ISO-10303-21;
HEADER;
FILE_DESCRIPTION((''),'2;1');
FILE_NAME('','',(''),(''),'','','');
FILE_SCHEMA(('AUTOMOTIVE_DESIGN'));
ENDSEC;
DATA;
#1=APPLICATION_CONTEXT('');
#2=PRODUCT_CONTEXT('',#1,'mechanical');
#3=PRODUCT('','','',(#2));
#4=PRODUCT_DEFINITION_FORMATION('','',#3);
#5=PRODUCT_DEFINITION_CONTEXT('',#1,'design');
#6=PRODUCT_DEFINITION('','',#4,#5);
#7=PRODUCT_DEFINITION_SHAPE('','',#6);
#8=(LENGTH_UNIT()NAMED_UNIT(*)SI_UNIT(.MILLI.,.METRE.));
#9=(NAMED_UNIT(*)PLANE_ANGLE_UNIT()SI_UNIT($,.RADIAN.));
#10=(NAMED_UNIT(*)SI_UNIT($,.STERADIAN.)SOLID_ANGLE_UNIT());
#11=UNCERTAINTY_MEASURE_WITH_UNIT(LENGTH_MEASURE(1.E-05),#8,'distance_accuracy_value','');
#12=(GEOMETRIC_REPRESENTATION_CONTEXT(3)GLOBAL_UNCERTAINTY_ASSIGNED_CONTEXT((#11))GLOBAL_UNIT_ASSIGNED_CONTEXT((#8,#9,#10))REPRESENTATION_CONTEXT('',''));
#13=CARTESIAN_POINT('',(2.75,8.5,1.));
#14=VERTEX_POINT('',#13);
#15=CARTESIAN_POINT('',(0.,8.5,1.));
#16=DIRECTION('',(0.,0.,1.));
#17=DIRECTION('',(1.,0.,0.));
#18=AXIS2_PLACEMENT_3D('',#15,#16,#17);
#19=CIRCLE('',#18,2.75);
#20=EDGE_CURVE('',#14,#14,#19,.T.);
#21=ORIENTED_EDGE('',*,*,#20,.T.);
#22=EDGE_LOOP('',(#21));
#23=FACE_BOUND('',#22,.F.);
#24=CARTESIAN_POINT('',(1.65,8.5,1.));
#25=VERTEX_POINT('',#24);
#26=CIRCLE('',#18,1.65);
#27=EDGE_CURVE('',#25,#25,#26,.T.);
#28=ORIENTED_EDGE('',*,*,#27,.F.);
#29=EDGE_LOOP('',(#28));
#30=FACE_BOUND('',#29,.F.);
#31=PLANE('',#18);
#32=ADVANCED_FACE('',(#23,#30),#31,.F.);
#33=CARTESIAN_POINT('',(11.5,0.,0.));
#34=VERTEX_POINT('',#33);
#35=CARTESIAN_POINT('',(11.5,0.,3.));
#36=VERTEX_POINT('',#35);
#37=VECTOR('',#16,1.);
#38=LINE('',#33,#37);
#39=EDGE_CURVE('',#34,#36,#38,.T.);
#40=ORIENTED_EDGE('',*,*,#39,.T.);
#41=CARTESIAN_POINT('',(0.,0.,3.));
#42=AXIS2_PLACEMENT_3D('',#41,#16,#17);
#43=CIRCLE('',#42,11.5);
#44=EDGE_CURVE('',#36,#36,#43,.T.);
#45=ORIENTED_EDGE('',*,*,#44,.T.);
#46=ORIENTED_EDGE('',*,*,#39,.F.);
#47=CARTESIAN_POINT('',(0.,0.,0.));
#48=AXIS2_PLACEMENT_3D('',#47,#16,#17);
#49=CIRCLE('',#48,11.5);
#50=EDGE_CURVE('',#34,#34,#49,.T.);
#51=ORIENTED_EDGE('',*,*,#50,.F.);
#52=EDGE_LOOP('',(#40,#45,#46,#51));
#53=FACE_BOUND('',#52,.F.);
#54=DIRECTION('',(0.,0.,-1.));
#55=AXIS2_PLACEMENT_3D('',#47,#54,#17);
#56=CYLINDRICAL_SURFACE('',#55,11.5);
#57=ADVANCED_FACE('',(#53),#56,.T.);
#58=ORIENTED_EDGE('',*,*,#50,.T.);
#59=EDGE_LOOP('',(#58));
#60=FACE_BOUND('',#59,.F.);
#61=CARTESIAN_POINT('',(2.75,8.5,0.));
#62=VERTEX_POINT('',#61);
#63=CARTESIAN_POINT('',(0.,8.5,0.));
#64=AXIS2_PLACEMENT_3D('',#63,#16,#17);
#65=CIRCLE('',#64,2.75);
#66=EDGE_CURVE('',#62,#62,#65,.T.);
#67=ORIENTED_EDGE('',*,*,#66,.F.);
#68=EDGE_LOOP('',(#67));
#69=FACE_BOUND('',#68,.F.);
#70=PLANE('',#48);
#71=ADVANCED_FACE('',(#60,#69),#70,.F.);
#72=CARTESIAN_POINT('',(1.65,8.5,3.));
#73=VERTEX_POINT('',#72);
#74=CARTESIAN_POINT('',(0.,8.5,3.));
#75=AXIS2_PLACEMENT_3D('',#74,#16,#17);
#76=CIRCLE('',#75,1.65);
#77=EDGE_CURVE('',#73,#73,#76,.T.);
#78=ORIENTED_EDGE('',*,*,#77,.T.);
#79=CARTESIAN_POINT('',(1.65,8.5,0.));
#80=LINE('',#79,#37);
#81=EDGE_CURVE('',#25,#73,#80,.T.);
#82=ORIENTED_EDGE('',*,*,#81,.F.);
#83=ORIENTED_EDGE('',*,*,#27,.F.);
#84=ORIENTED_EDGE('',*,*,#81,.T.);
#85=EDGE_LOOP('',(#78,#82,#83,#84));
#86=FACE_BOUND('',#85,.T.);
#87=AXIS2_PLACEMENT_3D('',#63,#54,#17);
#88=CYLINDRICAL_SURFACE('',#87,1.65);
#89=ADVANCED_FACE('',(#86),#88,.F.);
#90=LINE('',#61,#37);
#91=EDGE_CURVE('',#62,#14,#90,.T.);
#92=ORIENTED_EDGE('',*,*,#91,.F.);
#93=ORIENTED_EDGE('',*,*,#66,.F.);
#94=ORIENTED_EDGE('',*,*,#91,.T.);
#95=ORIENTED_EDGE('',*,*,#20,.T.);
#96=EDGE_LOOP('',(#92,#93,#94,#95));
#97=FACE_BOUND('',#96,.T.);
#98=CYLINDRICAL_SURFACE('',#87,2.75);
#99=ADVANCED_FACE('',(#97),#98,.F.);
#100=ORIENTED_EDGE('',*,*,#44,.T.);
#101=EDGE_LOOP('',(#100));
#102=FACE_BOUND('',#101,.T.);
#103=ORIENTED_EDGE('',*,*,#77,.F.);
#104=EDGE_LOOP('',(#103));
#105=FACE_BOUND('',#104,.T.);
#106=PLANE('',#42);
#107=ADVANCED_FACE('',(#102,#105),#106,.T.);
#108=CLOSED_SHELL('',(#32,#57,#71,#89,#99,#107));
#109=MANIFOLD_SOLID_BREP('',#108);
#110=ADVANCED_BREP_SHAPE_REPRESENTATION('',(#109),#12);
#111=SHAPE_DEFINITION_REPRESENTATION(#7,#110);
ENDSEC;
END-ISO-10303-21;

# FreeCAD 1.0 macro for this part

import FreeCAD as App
import Part
import Sketcher

V = App.Vector
Q = App.Units.Quantity

doc = App.newDocument("Part")
body = doc.addObject("PartDesign::Body", "Body")

sketch1 = body.newObject("Sketcher::SketchObject", "Sketch")
sketch1.AttachmentSupport = (doc.getObject("XY_Plane"), [""])
sketch1.MapMode = "FlatFace"
sketch1.addGeometry(Part.Circle(V(0, 0, 0), V(0, 0, 1), 11.5), False)
sketch1.addGeometry(Part.Circle(V(0, 8.5, 0), V(0, 0, 1), 1.65), False)
sketch1.addConstraint(Sketcher.Constraint("Coincident", 0, 3, -1, 1))
sketch1.addConstraint(Sketcher.Constraint("PointOnObject", 1, 3, -2))
sketch1.addConstraint(Sketcher.Constraint("Diameter", 0, Q("23 mm")))
sketch1.addConstraint(Sketcher.Constraint("Diameter", 1, Q("3.3 mm")))
sketch1.addConstraint(Sketcher.Constraint("DistanceY", -1, 1, 1, 3, Q("8.5 mm")))
pad1 = body.newObject("PartDesign::Pad", "Pad")
pad1.Profile = sketch1
pad1.Length = 3

sketch2 = body.newObject("Sketcher::SketchObject", "Sketch001")
sketch2.AttachmentSupport = (doc.getObject("XY_Plane"), [""])
sketch2.MapMode = "FlatFace"
sketch2.addGeometry(Part.Circle(V(0, 8.5, 0), V(0, 0, 1), 2.75), False)
sketch2.addGeometry(Part.Circle(V(0, 8.5, 0), V(0, 0, 1), 1.65), False)
sketch2.addConstraint(Sketcher.Constraint("Coincident", 1, 3, 0, 3))
sketch2.addConstraint(Sketcher.Constraint("PointOnObject", 0, 3, -2))
sketch2.addConstraint(Sketcher.Constraint("Diameter", 0, Q("5.5 mm")))
sketch2.addConstraint(Sketcher.Constraint("Diameter", 1, Q("3.3 mm")))
sketch2.addConstraint(Sketcher.Constraint("DistanceY", -1, 1, 0, 3, Q("8.5 mm")))
pocket1 = body.newObject("PartDesign::Pocket", "Pocket")
pocket1.Profile = sketch2
pocket1.Length = 1
pocket1.Reversed = True

doc.recompute()
